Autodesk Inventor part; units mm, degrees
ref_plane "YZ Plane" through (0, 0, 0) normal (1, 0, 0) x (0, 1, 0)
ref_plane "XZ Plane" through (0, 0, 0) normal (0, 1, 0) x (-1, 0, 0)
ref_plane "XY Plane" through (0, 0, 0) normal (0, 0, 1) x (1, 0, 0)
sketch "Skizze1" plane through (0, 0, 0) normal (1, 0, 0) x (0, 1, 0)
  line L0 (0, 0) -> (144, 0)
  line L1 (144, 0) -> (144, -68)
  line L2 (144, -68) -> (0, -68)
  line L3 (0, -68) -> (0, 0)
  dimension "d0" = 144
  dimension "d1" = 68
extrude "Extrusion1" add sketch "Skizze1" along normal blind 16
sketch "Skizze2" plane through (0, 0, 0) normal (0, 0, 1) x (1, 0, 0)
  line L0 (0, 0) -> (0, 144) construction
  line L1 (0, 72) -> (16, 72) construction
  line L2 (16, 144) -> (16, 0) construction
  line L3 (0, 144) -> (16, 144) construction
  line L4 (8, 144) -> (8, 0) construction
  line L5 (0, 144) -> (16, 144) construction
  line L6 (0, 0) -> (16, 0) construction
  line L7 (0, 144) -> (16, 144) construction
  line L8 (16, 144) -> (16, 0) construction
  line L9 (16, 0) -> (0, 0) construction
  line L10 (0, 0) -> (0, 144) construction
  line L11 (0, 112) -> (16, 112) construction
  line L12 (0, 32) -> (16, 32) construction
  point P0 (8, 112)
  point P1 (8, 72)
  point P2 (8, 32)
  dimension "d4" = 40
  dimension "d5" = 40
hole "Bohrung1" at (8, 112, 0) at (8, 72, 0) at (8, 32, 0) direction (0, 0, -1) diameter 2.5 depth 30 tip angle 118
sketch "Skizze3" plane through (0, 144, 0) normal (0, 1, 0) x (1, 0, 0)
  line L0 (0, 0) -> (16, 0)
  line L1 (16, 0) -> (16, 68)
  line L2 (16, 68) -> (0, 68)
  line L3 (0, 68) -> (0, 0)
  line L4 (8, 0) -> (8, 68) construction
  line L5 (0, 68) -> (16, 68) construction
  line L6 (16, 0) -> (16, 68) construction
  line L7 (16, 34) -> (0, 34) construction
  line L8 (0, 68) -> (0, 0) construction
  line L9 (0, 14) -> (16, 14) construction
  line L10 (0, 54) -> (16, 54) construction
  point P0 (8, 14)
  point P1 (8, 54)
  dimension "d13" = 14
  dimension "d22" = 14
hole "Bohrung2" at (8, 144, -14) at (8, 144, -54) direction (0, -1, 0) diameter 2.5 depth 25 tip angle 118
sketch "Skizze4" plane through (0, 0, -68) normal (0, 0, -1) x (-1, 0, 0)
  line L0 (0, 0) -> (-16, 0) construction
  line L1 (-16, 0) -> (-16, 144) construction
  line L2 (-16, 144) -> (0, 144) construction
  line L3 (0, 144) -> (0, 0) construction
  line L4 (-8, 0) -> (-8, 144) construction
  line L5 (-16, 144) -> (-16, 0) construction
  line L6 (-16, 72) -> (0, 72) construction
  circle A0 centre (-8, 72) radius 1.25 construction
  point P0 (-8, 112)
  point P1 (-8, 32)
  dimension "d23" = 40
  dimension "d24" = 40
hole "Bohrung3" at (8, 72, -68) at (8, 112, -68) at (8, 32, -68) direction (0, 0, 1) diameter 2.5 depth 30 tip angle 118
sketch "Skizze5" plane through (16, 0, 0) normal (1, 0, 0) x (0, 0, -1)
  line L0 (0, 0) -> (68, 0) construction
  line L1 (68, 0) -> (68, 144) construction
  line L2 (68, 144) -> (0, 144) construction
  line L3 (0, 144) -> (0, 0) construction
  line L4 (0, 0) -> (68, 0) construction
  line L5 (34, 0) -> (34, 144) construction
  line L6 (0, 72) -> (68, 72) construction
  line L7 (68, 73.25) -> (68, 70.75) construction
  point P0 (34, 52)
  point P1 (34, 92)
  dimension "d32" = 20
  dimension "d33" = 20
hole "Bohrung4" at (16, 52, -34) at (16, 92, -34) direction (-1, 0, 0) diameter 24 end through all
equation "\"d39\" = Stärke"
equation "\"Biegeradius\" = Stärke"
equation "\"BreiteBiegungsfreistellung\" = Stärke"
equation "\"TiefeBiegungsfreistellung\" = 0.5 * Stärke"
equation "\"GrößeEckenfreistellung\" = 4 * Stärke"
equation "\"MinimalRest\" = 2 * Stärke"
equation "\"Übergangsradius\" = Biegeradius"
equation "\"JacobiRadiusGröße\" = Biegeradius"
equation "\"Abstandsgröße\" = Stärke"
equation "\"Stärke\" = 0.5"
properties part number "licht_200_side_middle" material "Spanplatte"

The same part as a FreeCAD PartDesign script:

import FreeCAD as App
import Part
import Sketcher

V = App.Vector


def add_polygon(sketch, points):
    """Adds a closed chain of lines whose ends are joined by coincident constraints."""
    first, n = sketch.GeometryCount, len(points)
    for a, b in zip(points, points[1:] + points[:1]):
        sketch.addGeometry(Part.LineSegment(App.Vector(*a, 0), App.Vector(*b, 0)), False)
    for i in range(n):
        sketch.addConstraint(Sketcher.Constraint("Coincident", first + i, 2, first + (i + 1) % n, 1))

doc = App.newDocument("Part")
body = doc.addObject("PartDesign::Body", "Body")

# Sketch on YZ plane
sketch1 = doc.addObject("Sketcher::SketchObject", "Sketch")
body.addObject(sketch1)
sketch1.AttachmentSupport = (doc.YZ_Plane, [""])
sketch1.MapMode = "FlatFace"
add_polygon(sketch1, [(144, 0), (0, 0), (0, -68), (144, -68)])  # lines 0-3
sketch1.addConstraint([
    Sketcher.Constraint("Horizontal", 0),
    Sketcher.Constraint("Vertical", 1),
    Sketcher.Constraint("Horizontal", 2),
    Sketcher.Constraint("Vertical", 3),
    Sketcher.Constraint("Coincident", 0, 2, -1, 1),
    Sketcher.Constraint("DistanceX", 0, 2, 0, 1, 144.0),
    Sketcher.Constraint("DistanceY", 1, 2, 1, 1, 68.0),
])
pad1 = doc.addObject("PartDesign::Pad", "Pad")
body.addObject(pad1)
pad1.Profile = sketch1
pad1.Length = 16

# Sketch on XY plane
sketch2 = doc.addObject("Sketcher::SketchObject", "Sketch001")
body.addObject(sketch2)
sketch2.AttachmentSupport = (doc.XY_Plane, [""])
sketch2.MapMode = "FlatFace"
sketch2.addGeometry([
    Part.Circle(V(8, 112, 0), V(0, 0, 1), 1.2),
    Part.Circle(V(8, 72, 0), V(0, 0, 1), 1.2),
    Part.Circle(V(8, 32, 0), V(0, 0, 1), 1.2),
], False)
sketch2.addConstraint([
    Sketcher.Constraint("Equal", 0, 1),
    Sketcher.Constraint("Equal", 1, 2),
    Sketcher.Constraint("Vertical", 0, 3, 1, 3),
    Sketcher.Constraint("Vertical", 1, 3, 2, 3),
    Sketcher.Constraint("Diameter", 0, 2.5),
    Sketcher.Constraint("DistanceX", -1, 1, 0, 3, 8.0),
    Sketcher.Constraint("DistanceY", -1, 1, 0, 3, 112.0),
    Sketcher.Constraint("DistanceY", -1, 1, 1, 3, 72.0),
    Sketcher.Constraint("DistanceY", -1, 1, 2, 3, 32.0),
])
doc.recompute()
hole = doc.addObject("PartDesign::Hole", "Hole")
body.addObject(hole)
hole.Profile = sketch2
hole.ThreadType = "None"
hole.Diameter = 2.5
hole.DepthType = "Dimension"
hole.Depth = 30
hole.DrillPoint = "Angled"
hole.DrillPointAngle = 118

# Sketch on XZ plane
sketch3 = doc.addObject("Sketcher::SketchObject", "Sketch002")
body.addObject(sketch3)
sketch3.AttachmentSupport = (doc.XZ_Plane, [""])
sketch3.MapMode = "FlatFace"
sketch3.AttachmentOffset = App.Placement(V(0, 0, -144), App.Rotation())
sketch3.addGeometry([
    Part.Circle(V(8, -14, 0), V(0, 0, 1), 1.2),
    Part.Circle(V(8, -54, 0), V(0, 0, 1), 1.2),
], False)
sketch3.addConstraint([
    Sketcher.Constraint("Equal", 0, 1),
    Sketcher.Constraint("Vertical", 0, 3, 1, 3),
    Sketcher.Constraint("Diameter", 0, 2.5),
    Sketcher.Constraint("DistanceX", -1, 1, 0, 3, 8.0),
    Sketcher.Constraint("DistanceY", 0, 3, -1, 1, 14.0),
    Sketcher.Constraint("DistanceY", 1, 3, -1, 1, 54.0),
])
doc.recompute()
hole2 = doc.addObject("PartDesign::Hole", "Hole001")
body.addObject(hole2)
hole2.Profile = sketch3
hole2.ThreadType = "None"
hole2.Diameter = 2.5
hole2.DepthType = "Dimension"
hole2.Depth = 25
hole2.DrillPoint = "Angled"
hole2.DrillPointAngle = 118
hole2.Reversed = True

# Sketch on XY plane
sketch4 = doc.addObject("Sketcher::SketchObject", "Sketch003")
body.addObject(sketch4)
sketch4.AttachmentSupport = (doc.XY_Plane, [""])
sketch4.MapMode = "FlatFace"
sketch4.AttachmentOffset = App.Placement(V(0, 0, -68), App.Rotation())
sketch4.addGeometry([
    Part.Circle(V(8, 72, 0), V(0, 0, 1), 1.2),
    Part.Circle(V(8, 112, 0), V(0, 0, 1), 1.2),
    Part.Circle(V(8, 32, 0), V(0, 0, 1), 1.2),
], False)
sketch4.addConstraint([
    Sketcher.Constraint("Equal", 0, 1),
    Sketcher.Constraint("Equal", 1, 2),
    Sketcher.Constraint("Vertical", 0, 3, 1, 3),
    Sketcher.Constraint("Vertical", 1, 3, 2, 3),
    Sketcher.Constraint("Diameter", 0, 2.5),
    Sketcher.Constraint("DistanceX", -1, 1, 0, 3, 8.0),
    Sketcher.Constraint("DistanceY", -1, 1, 0, 3, 72.0),
    Sketcher.Constraint("DistanceY", -1, 1, 1, 3, 112.0),
    Sketcher.Constraint("DistanceY", -1, 1, 2, 3, 32.0),
])
doc.recompute()
hole3 = doc.addObject("PartDesign::Hole", "Hole002")
body.addObject(hole3)
hole3.Profile = sketch4
hole3.ThreadType = "None"
hole3.Diameter = 2.5
hole3.DepthType = "Dimension"
hole3.Depth = 30
hole3.DrillPoint = "Angled"
hole3.DrillPointAngle = 118
hole3.Reversed = True

# Sketch on YZ plane
sketch5 = doc.addObject("Sketcher::SketchObject", "Sketch004")
body.addObject(sketch5)
sketch5.AttachmentSupport = (doc.YZ_Plane, [""])
sketch5.MapMode = "FlatFace"
sketch5.AttachmentOffset = App.Placement(V(0, 0, 16), App.Rotation())
sketch5.addGeometry([
    Part.Circle(V(52, -34, 0), V(0, 0, 1), 12),
    Part.Circle(V(92, -34, 0), V(0, 0, 1), 12),
], False)
sketch5.addConstraint([
    Sketcher.Constraint("Equal", 0, 1),
    Sketcher.Constraint("Horizontal", 0, 3, 1, 3),
    Sketcher.Constraint("Diameter", 0, 24.0),
    Sketcher.Constraint("DistanceX", -1, 1, 0, 3, 52.0),
    Sketcher.Constraint("DistanceY", 0, 3, -1, 1, 34.0),
    Sketcher.Constraint("DistanceX", -1, 1, 1, 3, 92.0),
])
doc.recompute()
hole4 = doc.addObject("PartDesign::Hole", "Hole003")
body.addObject(hole4)
hole4.Profile = sketch5
hole4.ThreadType = "None"
hole4.Diameter = 24
hole4.DepthType = "ThroughAll"

doc.recompute()
